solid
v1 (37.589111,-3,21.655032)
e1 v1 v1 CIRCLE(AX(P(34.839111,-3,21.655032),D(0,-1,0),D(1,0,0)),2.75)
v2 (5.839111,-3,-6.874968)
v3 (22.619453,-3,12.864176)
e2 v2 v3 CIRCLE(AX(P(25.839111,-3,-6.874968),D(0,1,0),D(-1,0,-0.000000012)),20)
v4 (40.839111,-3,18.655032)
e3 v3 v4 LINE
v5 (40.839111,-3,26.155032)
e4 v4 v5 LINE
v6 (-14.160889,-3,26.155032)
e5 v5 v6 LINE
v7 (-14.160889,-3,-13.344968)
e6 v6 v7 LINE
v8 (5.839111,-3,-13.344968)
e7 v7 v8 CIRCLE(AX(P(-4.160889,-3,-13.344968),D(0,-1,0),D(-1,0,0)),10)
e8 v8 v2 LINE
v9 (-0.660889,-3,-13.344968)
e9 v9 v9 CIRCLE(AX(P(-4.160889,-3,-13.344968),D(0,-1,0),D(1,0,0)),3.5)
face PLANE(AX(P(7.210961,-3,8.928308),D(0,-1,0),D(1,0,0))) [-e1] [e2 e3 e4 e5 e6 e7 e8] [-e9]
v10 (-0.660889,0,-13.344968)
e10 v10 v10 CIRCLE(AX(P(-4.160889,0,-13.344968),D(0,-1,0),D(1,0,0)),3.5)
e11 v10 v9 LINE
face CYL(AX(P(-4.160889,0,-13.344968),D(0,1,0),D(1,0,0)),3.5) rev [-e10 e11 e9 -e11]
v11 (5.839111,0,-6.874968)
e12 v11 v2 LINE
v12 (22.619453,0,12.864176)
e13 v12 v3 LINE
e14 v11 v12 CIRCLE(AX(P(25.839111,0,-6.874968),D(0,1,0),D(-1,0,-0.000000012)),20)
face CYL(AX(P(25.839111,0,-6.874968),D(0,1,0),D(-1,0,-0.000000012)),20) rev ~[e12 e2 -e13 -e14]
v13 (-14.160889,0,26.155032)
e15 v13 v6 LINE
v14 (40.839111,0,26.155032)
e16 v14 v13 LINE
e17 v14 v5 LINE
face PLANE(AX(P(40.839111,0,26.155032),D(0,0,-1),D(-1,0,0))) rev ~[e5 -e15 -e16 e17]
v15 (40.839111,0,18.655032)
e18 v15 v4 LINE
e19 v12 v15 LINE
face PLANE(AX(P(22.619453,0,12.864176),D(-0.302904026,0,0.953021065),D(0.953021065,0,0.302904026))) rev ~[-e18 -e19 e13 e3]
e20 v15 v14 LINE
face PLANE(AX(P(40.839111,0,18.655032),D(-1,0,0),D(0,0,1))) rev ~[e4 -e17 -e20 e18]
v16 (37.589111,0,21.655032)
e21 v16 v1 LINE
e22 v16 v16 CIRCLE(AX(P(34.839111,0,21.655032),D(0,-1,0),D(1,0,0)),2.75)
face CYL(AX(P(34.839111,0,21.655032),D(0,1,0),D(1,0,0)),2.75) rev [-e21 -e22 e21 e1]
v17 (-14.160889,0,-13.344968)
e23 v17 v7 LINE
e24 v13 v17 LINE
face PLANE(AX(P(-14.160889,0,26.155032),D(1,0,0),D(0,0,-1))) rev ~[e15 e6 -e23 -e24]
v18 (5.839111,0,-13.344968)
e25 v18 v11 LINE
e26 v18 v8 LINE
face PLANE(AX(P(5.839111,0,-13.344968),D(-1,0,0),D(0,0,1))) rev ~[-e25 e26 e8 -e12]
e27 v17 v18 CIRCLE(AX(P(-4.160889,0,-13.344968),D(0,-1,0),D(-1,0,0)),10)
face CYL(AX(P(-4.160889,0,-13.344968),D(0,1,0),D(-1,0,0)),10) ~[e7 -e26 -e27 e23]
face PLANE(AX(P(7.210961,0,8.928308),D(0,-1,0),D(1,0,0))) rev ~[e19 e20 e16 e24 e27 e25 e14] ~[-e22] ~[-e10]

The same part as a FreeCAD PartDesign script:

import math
import FreeCAD as App
import Part
import Sketcher
Q = App.Units.Quantity

doc = App.newDocument("Part")
body = doc.addObject("PartDesign::Body", "Body")

sketch1 = doc.addObject("Sketcher::SketchObject", "Sketch")
body.addObject(sketch1)
sketch1.AttachmentSupport = (doc.XZ_Plane, [""])
sketch1.MapMode = "FlatFace"
sketch1.addGeometry([
    Part.LineSegment(App.Vector(40.839111, 26.155032, 0), App.Vector(-14.160889, 26.155032, 0)),
    Part.LineSegment(App.Vector(-14.160889, 26.155032, 0), App.Vector(-14.160889, -13.344968, 0)),
    Part.ArcOfCircle(Part.Circle(App.Vector(-4.160889, -13.344968, 0), App.Vector(0, 0, 1), 10), math.radians(180), math.radians(360)),
    Part.LineSegment(App.Vector(5.839111, -13.344968, 0), App.Vector(5.839111, -6.874968, 0)),
    Part.ArcOfCircle(Part.Circle(App.Vector(25.839111, -6.874968, 0), App.Vector(0, 0, 1), 20), math.radians(99.263951), math.radians(180.000001)),
    Part.LineSegment(App.Vector(22.619453, 12.864176, 0), App.Vector(40.839111, 18.655032, 0)),
    Part.LineSegment(App.Vector(40.839111, 18.655032, 0), App.Vector(40.839111, 26.155032, 0)),
    Part.Circle(App.Vector(-4.160889, -13.344968, 0), App.Vector(0, 0, 1), 3.5),
    Part.Circle(App.Vector(34.839111, 21.655032, 0), App.Vector(0, 0, 1), 2.75),
], False)
sketch1.addConstraint([
    Sketcher.Constraint("Coincident", 0, 2, 1, 1),
    Sketcher.Constraint("Tangent", 1, 2, 2, 1),
    Sketcher.Constraint("Tangent", 2, 2, 3, 1),
    Sketcher.Constraint("Tangent", 3, 2, 4, 2),
    Sketcher.Constraint("Coincident", 4, 1, 5, 1),
    Sketcher.Constraint("Coincident", 5, 2, 6, 1),
    Sketcher.Constraint("Coincident", 6, 2, 0, 1),
    Sketcher.Constraint("Horizontal", 0),
    Sketcher.Constraint("Vertical", 1),
    Sketcher.Constraint("Vertical", 3),
    Sketcher.Constraint("Vertical", 6),
    Sketcher.Constraint("Coincident", 7, 3, 2, 3),
    Sketcher.Constraint("Diameter", 7, Q("7 mm")),
    Sketcher.Constraint("Radius", 2, Q("10 mm")),
    Sketcher.Constraint("Radius", 4, Q("20 mm")),
    Sketcher.Constraint("Diameter", 8, Q("5.5 mm")),
    Sketcher.Constraint("DistanceX", 0, 2, 0, 1, Q("55 mm")),
    Sketcher.Constraint("DistanceY", 1, 2, 1, 1, Q("39.5 mm")),
    Sketcher.Constraint("DistanceY", 6, 1, 6, 2, Q("7.5 mm")),
    Sketcher.Constraint("DistanceX", 4, 3, 8, 3, Q("9 mm")),
    Sketcher.Constraint("DistanceY", 2, 3, 8, 3, Q("35 mm")),
    Sketcher.Constraint("DistanceY", 3, 1, 3, 2, Q("6.47 mm")),
    Sketcher.Constraint("Distance", 5, Q("19.117791 mm")),
    Sketcher.Constraint("DistanceX", 2, 3, -1, 1, Q("4.160889 mm")),
    Sketcher.Constraint("DistanceY", -1, 1, 8, 3, Q("21.655032 mm")),
])
pad1 = doc.addObject("PartDesign::Pad", "Pad")
body.addObject(pad1)
pad1.Profile = sketch1
pad1.Length = 3

doc.recompute()
